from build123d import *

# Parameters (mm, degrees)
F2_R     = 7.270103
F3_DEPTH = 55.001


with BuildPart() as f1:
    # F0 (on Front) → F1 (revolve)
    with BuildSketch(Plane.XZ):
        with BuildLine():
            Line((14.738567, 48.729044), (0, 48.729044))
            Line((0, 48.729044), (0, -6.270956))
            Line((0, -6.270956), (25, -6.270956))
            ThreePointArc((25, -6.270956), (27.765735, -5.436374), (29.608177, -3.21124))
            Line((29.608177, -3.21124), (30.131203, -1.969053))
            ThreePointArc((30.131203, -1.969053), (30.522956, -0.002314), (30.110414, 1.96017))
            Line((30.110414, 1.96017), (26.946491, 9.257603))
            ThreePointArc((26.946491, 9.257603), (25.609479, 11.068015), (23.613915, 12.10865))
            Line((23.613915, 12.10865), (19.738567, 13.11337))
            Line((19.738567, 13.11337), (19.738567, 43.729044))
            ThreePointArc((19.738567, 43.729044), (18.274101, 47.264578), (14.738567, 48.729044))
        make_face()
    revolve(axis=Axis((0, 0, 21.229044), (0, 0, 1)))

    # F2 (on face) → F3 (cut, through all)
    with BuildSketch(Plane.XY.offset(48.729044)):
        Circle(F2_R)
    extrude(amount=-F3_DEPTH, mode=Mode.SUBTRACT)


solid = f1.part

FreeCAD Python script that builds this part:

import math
import FreeCAD as App
import Part
import Sketcher

V = App.Vector

doc = App.newDocument("Part")
body = doc.addObject("PartDesign::Body", "Body")

# Sketch on XZ plane
sketch1 = doc.addObject("Sketcher::SketchObject", "Sketch")
body.addObject(sketch1)
sketch1.AttachmentSupport = (doc.XZ_Plane, [""])
sketch1.MapMode = "FlatFace"
sketch1.addGeometry([
    Part.LineSegment(V(14.7, 48.7, 0), V(0, 48.7, 0)),  # 0
    Part.LineSegment(V(0, 48.7, 0), V(0, -6.3, 0)),  # 1
    Part.LineSegment(V(0, -6.3, 0), V(25, -6.3, 0)),  # 2
    Part.ArcOfCircle(Part.Circle(V(25, -1.3, 0), V(0, 0, 1), 5), math.radians(-90), math.radians(-23)),  # 3
    Part.LineSegment(V(29.6, -3.2, 0), V(30.1, -2, 0)),  # 4
    Part.ArcOfCircle(Part.Circle(V(25.5, 0, 0), V(0, 0, 1), 5), math.radians(-23), math.radians(23)),  # 5
    Part.LineSegment(V(30.1, 2, 0), V(26.9, 9.3, 0)),  # 6
    Part.ArcOfCircle(Part.Circle(V(22.4, 7.3, 0), V(0, 0, 1), 5), math.radians(23), math.radians(75)),  # 7
    Part.LineSegment(V(23.6, 12.1, 0), V(19.7, 13.1, 0)),  # 8
    Part.LineSegment(V(19.7, 13.1, 0), V(19.7, 43.7, 0)),  # 9
    Part.ArcOfCircle(Part.Circle(V(14.7, 43.7, 0), V(0, 0, 1), 5), math.radians(0), math.radians(90)),  # 10
], False)
sketch1.addConstraint([
    Sketcher.Constraint("Coincident", 0, 2, 1, 1),
    Sketcher.Constraint("Coincident", 1, 2, 2, 1),
    Sketcher.Constraint("Tangent", 2, 2, 3, 1),
    Sketcher.Constraint("Tangent", 3, 2, 4, 1),
    Sketcher.Constraint("Tangent", 4, 2, 5, 1),
    Sketcher.Constraint("Tangent", 5, 2, 6, 1),
    Sketcher.Constraint("Tangent", 6, 2, 7, 1),
    Sketcher.Constraint("Tangent", 7, 2, 8, 1),
    Sketcher.Constraint("Coincident", 8, 2, 9, 1),
    Sketcher.Constraint("Tangent", 9, 2, 10, 1),
    Sketcher.Constraint("Tangent", 10, 2, 0, 1),
    Sketcher.Constraint("Horizontal", 0),
    Sketcher.Constraint("Vertical", 1),
    Sketcher.Constraint("Horizontal", 2),
    Sketcher.Constraint("Vertical", 9),
    Sketcher.Constraint("Equal", 5, 7),
    Sketcher.Constraint("Equal", 7, 10),
    Sketcher.Constraint("PointOnObject", 0, 2, -2),
    Sketcher.Constraint("Radius", 3, 5.000001),
    Sketcher.Constraint("Radius", 7, 5.000001),
    Sketcher.Constraint("DistanceX", 2, 1, 2, 2, 25.0),
    Sketcher.Constraint("DistanceY", 1, 2, 1, 1, 55.0),
    Sketcher.Constraint("Distance", 6, 7.9538),
    Sketcher.Constraint("DistanceX", -1, 1, 7, 3, 22.359102),
    Sketcher.Constraint("DistanceX", 7, 3, 4, 2, 7.772101),
    Sketcher.Constraint("DistanceX", 7, 2, 5, 2, 6.496499),
    Sketcher.Constraint("DistanceY", 5, 2, 8, 2, 11.1532),
    Sketcher.Constraint("Distance", 8, 4.003472),
    Sketcher.Constraint("DistanceY", 3, 2, -1, 1, 3.21124),
])
revolution = doc.addObject("PartDesign::Revolution", "Revolution")
body.addObject(revolution)
revolution.Profile = sketch1
revolution.ReferenceAxis = (sketch1, ["V_Axis"])
revolution.Angle = 360

# Sketch on XY plane
sketch2 = doc.addObject("Sketcher::SketchObject", "Sketch001")
body.addObject(sketch2)
sketch2.AttachmentSupport = (doc.XY_Plane, [""])
sketch2.MapMode = "FlatFace"
sketch2.AttachmentOffset = App.Placement(V(0, 0, 48.729044), App.Rotation())
sketch2.addGeometry(Part.Circle(V(0, 0, 0), V(0, 0, 1), 7), False)
sketch2.addConstraint([
    Sketcher.Constraint("Coincident", 0, 3, -1, 1),
    Sketcher.Constraint("Diameter", 0, 14.540206),
])
pocket1 = doc.addObject("PartDesign::Pocket", "Pocket")
body.addObject(pocket1)
pocket1.Profile = sketch2
pocket1.Type = "ThroughAll"

doc.recompute()
